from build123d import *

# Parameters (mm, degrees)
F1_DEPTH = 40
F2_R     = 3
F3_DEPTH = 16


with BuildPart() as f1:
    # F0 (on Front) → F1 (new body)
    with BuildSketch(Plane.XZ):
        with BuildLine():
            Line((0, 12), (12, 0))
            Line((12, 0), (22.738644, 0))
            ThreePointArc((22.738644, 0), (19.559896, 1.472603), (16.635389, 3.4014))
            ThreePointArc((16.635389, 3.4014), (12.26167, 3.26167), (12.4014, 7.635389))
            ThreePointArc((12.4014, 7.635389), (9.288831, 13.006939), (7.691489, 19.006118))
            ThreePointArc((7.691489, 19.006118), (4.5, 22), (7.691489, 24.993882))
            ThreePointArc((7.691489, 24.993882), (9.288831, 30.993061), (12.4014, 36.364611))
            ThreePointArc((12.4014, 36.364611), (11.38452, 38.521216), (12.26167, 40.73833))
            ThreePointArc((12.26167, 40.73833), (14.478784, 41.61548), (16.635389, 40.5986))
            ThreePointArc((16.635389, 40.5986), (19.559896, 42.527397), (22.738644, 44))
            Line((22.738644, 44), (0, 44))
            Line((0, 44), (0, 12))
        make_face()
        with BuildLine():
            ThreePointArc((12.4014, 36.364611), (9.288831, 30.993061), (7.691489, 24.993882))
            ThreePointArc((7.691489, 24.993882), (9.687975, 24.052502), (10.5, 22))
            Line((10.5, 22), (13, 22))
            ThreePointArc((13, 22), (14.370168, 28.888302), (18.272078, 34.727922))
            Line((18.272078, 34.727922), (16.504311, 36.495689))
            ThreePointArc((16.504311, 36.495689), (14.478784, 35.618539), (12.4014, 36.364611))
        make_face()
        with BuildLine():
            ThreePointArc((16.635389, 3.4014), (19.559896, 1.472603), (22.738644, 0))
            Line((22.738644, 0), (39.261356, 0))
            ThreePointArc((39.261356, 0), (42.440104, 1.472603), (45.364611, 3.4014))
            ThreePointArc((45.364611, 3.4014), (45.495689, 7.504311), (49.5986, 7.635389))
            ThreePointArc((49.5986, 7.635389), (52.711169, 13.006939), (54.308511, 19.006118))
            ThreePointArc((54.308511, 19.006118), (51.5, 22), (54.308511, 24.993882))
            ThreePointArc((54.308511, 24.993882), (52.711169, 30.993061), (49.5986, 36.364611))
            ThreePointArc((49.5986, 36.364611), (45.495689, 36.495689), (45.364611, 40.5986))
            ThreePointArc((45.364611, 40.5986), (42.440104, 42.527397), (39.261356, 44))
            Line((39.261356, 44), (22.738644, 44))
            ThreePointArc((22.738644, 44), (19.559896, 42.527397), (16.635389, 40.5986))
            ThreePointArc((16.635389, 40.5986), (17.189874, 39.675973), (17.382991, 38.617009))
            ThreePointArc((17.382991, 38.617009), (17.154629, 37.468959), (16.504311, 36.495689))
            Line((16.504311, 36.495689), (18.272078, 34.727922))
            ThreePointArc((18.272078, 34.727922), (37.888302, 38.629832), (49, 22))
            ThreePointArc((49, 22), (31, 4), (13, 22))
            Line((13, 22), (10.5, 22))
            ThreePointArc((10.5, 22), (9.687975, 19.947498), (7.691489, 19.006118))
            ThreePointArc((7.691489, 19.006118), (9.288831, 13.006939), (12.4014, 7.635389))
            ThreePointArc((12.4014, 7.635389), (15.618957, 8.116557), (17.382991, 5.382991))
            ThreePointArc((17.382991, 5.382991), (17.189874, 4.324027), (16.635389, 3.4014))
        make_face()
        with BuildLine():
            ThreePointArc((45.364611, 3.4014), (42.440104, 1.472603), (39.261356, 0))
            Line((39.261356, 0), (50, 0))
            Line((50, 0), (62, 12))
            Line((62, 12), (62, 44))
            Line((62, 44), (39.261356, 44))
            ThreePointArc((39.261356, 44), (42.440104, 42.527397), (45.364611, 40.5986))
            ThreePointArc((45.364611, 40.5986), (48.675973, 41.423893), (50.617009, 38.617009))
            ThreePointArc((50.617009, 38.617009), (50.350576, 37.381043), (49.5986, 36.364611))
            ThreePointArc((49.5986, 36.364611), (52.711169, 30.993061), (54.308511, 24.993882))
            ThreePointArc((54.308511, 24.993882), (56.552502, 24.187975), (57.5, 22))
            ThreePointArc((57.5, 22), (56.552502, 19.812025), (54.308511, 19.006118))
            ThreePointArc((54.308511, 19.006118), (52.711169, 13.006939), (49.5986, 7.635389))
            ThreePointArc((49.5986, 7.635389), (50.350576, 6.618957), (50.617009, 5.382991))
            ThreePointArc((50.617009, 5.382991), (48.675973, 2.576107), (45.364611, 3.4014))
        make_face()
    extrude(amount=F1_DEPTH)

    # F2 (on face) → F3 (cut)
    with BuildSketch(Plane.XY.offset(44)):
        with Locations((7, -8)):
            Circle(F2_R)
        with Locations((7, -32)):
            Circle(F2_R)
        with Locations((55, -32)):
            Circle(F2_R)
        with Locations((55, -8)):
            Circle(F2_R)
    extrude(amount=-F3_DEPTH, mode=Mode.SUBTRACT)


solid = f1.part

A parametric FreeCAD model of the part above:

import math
import FreeCAD as App
import Part
import Sketcher
Q = App.Units.Quantity


def add_polygon(sketch, points):
    """Adds a closed chain of lines whose ends are joined by coincident constraints."""
    first, n = sketch.GeometryCount, len(points)
    for a, b in zip(points, points[1:] + points[:1]):
        sketch.addGeometry(Part.LineSegment(App.Vector(*a, 0), App.Vector(*b, 0)), False)
    for i in range(n):
        sketch.addConstraint(Sketcher.Constraint("Coincident", first + i, 2, first + (i + 1) % n, 1))

doc = App.newDocument("Part")
body = doc.addObject("PartDesign::Body", "Body")

sketch1 = doc.addObject("Sketcher::SketchObject", "Sketch")
body.addObject(sketch1)
sketch1.AttachmentSupport = (doc.XZ_Plane, [""])
sketch1.MapMode = "FlatFace"
add_polygon(sketch1, [(0, 12), (12, 0), (50, 0), (62, 12), (62, 44), (0, 44)])
sketch1.addGeometry(Part.ArcOfCircle(Part.Circle(App.Vector(47.6, 5.4, 0), App.Vector(0, 0, 1), 3), math.radians(49), math.radians(221)), False)
sketch1.addGeometry(Part.ArcOfCircle(Part.Circle(App.Vector(47.6, 5.4, 0), App.Vector(0, 0, 1), 3), math.radians(0), math.radians(49)), False)
sketch1.addGeometry(Part.ArcOfCircle(Part.Circle(App.Vector(47.6, 5.4, 0), App.Vector(0, 0, 1), 3), math.radians(-139), math.radians(0)), False)
sketch1.addGeometry(Part.ArcOfCircle(Part.Circle(App.Vector(54.5, 22, 0), App.Vector(0, 0, 1), 3), math.radians(94), math.radians(266)), False)
sketch1.addGeometry(Part.ArcOfCircle(Part.Circle(App.Vector(54.5, 22, 0), App.Vector(0, 0, 1), 3), math.radians(0), math.radians(94)), False)
sketch1.addGeometry(Part.ArcOfCircle(Part.Circle(App.Vector(54.5, 22, 0), App.Vector(0, 0, 1), 3), math.radians(-94), math.radians(0)), False)
sketch1.addGeometry(Part.ArcOfCircle(Part.Circle(App.Vector(47.6, 38.6, 0), App.Vector(0, 0, 1), 3), math.radians(139), math.radians(311)), False)
sketch1.addGeometry(Part.ArcOfCircle(Part.Circle(App.Vector(47.6, 38.6, 0), App.Vector(0, 0, 1), 3), math.radians(0), math.radians(139)), False)
sketch1.addGeometry(Part.ArcOfCircle(Part.Circle(App.Vector(47.6, 38.6, 0), App.Vector(0, 0, 1), 3), math.radians(-49), math.radians(0)), False)
sketch1.addGeometry(Part.ArcOfCircle(Part.Circle(App.Vector(14.4, 5.4, 0), App.Vector(0, 0, 1), 3), math.radians(131), math.radians(319)), False)
sketch1.addGeometry(Part.ArcOfCircle(Part.Circle(App.Vector(14.4, 5.4, 0), App.Vector(0, 0, 1), 3), math.radians(0), math.radians(131)), False)
sketch1.addGeometry(Part.ArcOfCircle(Part.Circle(App.Vector(14.4, 5.4, 0), App.Vector(0, 0, 1), 3), math.radians(-41), math.radians(0)), False)
sketch1.addGeometry(Part.ArcOfCircle(Part.Circle(App.Vector(7.5, 22, 0), App.Vector(0, 0, 1), 3), math.radians(86), math.radians(274)), False)
sketch1.addGeometry(Part.ArcOfCircle(Part.Circle(App.Vector(7.5, 22, 0), App.Vector(0, 0, 1), 3), math.radians(0), math.radians(86)), False)
sketch1.addGeometry(Part.ArcOfCircle(Part.Circle(App.Vector(7.5, 22, 0), App.Vector(0, 0, 1), 3), math.radians(-86), math.radians(0)), False)
sketch1.addGeometry(Part.ArcOfCircle(Part.Circle(App.Vector(31, 22, 0), App.Vector(0, 0, 1), 18), math.radians(135), math.radians(180)), False)
sketch1.addGeometry(Part.ArcOfCircle(Part.Circle(App.Vector(31, 22, 0), App.Vector(0, 0, 1), 18), math.radians(0), math.radians(135)), False)
sketch1.addGeometry(Part.ArcOfCircle(Part.Circle(App.Vector(31, 22, 0), App.Vector(0, 0, 1), 18), math.radians(180), math.radians(360)), False)
sketch1.addGeometry(Part.ArcOfCircle(Part.Circle(App.Vector(14.4, 38.6, 0), App.Vector(0, 0, 1), 3), math.radians(-131), math.radians(-45)), False)
sketch1.addGeometry(Part.ArcOfCircle(Part.Circle(App.Vector(14.4, 38.6, 0), App.Vector(0, 0, 1), 3), math.radians(135), math.radians(229)), False)
sketch1.addGeometry(Part.ArcOfCircle(Part.Circle(App.Vector(14.4, 38.6, 0), App.Vector(0, 0, 1), 3), math.radians(41), math.radians(135)), False)
sketch1.addGeometry(Part.ArcOfCircle(Part.Circle(App.Vector(14.4, 38.6, 0), App.Vector(0, 0, 1), 3), math.radians(0), math.radians(41)), False)
sketch1.addGeometry(Part.ArcOfCircle(Part.Circle(App.Vector(14.4, 38.6, 0), App.Vector(0, 0, 1), 3), math.radians(-45), math.radians(0)), False)
sketch1.addConstraint(Sketcher.Constraint("Tangent", 6, 1, 7, 2))
sketch1.addConstraint(Sketcher.Constraint("Tangent", 7, 1, 8, 2))
sketch1.addConstraint(Sketcher.Constraint("Tangent", 8, 1, 6, 2))
sketch1.addConstraint(Sketcher.Constraint("Tangent", 9, 1, 10, 2))
sketch1.addConstraint(Sketcher.Constraint("Tangent", 10, 1, 11, 2))
sketch1.addConstraint(Sketcher.Constraint("Tangent", 11, 1, 9, 2))
sketch1.addConstraint(Sketcher.Constraint("Tangent", 12, 1, 13, 2))
sketch1.addConstraint(Sketcher.Constraint("Tangent", 13, 1, 14, 2))
sketch1.addConstraint(Sketcher.Constraint("Tangent", 14, 1, 12, 2))
sketch1.addConstraint(Sketcher.Constraint("Tangent", 15, 1, 16, 2))
sketch1.addConstraint(Sketcher.Constraint("Tangent", 16, 1, 17, 2))
sketch1.addConstraint(Sketcher.Constraint("Tangent", 17, 1, 15, 2))
sketch1.addConstraint(Sketcher.Constraint("Tangent", 18, 1, 19, 2))
sketch1.addConstraint(Sketcher.Constraint("Tangent", 19, 1, 20, 2))
sketch1.addConstraint(Sketcher.Constraint("Tangent", 20, 1, 18, 2))
sketch1.addConstraint(Sketcher.Constraint("Tangent", 21, 1, 22, 2))
sketch1.addConstraint(Sketcher.Constraint("Tangent", 22, 1, 23, 2))
sketch1.addConstraint(Sketcher.Constraint("Tangent", 23, 1, 21, 2))
sketch1.addConstraint(Sketcher.Constraint("Tangent", 24, 1, 25, 2))
sketch1.addConstraint(Sketcher.Constraint("Tangent", 25, 1, 26, 2))
sketch1.addConstraint(Sketcher.Constraint("Tangent", 26, 1, 27, 2))
sketch1.addConstraint(Sketcher.Constraint("Tangent", 27, 1, 28, 2))
sketch1.addConstraint(Sketcher.Constraint("Tangent", 28, 1, 24, 2))
sketch1.addConstraint(Sketcher.Constraint("Horizontal", 1))
sketch1.addConstraint(Sketcher.Constraint("Vertical", 3))
sketch1.addConstraint(Sketcher.Constraint("Horizontal", 4))
sketch1.addConstraint(Sketcher.Constraint("Vertical", 5))
sketch1.addConstraint(Sketcher.Constraint("Coincident", 26, 3, 24, 3))
sketch1.addConstraint(Sketcher.Constraint("Equal", 8, 9))
sketch1.addConstraint(Sketcher.Constraint("Equal", 11, 12))
sketch1.addConstraint(Sketcher.Constraint("Equal", 14, 15))
sketch1.addConstraint(Sketcher.Constraint("Equal", 16, 18))
sketch1.addConstraint(Sketcher.Constraint("Equal", 20, 24))
sketch1.addConstraint(Sketcher.Constraint("PointOnObject", 0, 2, -1))
sketch1.addConstraint(Sketcher.Constraint("PointOnObject", 4, 2, -2))
sketch1.addConstraint(Sketcher.Constraint("Perpendicular", 0, 2))
sketch1.addConstraint(Sketcher.Constraint("Horizontal", 8, 3, 15, 3))
sketch1.addConstraint(Sketcher.Constraint("Horizontal", 11, 3, 18, 3))
sketch1.addConstraint(Sketcher.Constraint("Horizontal", 20, 3, 22, 3))
sketch1.addConstraint(Sketcher.Constraint("Horizontal", 14, 3, 24, 3))
sketch1.addConstraint(Sketcher.Constraint("Horizontal", 2, 2, 5, 2))
sketch1.addConstraint(Sketcher.Constraint("Horizontal", 16, 3, 7, 1))
sketch1.addConstraint(Sketcher.Constraint("Horizontal", 23, 3, 10, 1))
sketch1.addConstraint(Sketcher.Constraint("Horizontal", 26, 3, 13, 1))
sketch1.addConstraint(Sketcher.Constraint("Horizontal", 6, 1, 15, 1))
sketch1.addConstraint(Sketcher.Constraint("Horizontal", 7, 1, 16, 1))
sketch1.addConstraint(Sketcher.Constraint("Horizontal", 8, 1, 17, 1))
sketch1.addConstraint(Sketcher.Constraint("Horizontal", 9, 1, 18, 1))
sketch1.addConstraint(Sketcher.Constraint("Horizontal", 10, 1, 19, 1))
sketch1.addConstraint(Sketcher.Constraint("Horizontal", 11, 1, 20, 1))
sketch1.addConstraint(Sketcher.Constraint("Horizontal", 19, 1, 22, 1))
sketch1.addConstraint(Sketcher.Constraint("Horizontal", 22, 1, 23, 1))
sketch1.addConstraint(Sketcher.Constraint("Horizontal", 14, 1, 24, 1))
sketch1.addConstraint(Sketcher.Constraint("Horizontal", 12, 1, 26, 1))
sketch1.addConstraint(Sketcher.Constraint("Horizontal", 13, 1, 27, 1))
sketch1.addConstraint(Sketcher.Constraint("Vertical", 8, 3, 12, 3))
sketch1.addConstraint(Sketcher.Constraint("Vertical", 16, 3, 24, 3))
sketch1.addConstraint(Sketcher.Constraint("Vertical", 9, 1, 11, 1))
sketch1.addConstraint(Sketcher.Constraint("Vertical", 8, 1, 12, 1))
sketch1.addConstraint(Sketcher.Constraint("Vertical", 6, 1, 14, 1))
sketch1.addConstraint(Sketcher.Constraint("Equal", 0, 2))
sketch1.addConstraint(Sketcher.Constraint("Radius", 6, Q("3 mm")))
sketch1.addConstraint(Sketcher.Constraint("Radius", 22, Q("18 mm")))
sketch1.addConstraint(Sketcher.Constraint("DistanceX", 1, 1, 1, 2, Q("38 mm")))
sketch1.addConstraint(Sketcher.Constraint("DistanceX", 4, 2, 4, 1, Q("62 mm")))
sketch1.addConstraint(Sketcher.Constraint("DistanceY", 3, 1, 3, 2, Q("32 mm")))
sketch1.addConstraint(Sketcher.Constraint("DistanceY", -1, 1, 9, 3, Q("22 mm")))
sketch1.addConstraint(Sketcher.Constraint("DistanceX", -1, 1, 22, 3, Q("31 mm")))
sketch1.addConstraint(Sketcher.Constraint("DistanceX", -1, 1, 9, 3, Q("54.5 mm")))
sketch1.addConstraint(Sketcher.Constraint("DistanceX", -1, 1, 18, 3, Q("7.5 mm")))
sketch1.addConstraint(Sketcher.Constraint("DistanceX", -1, 1, 6, 1, Q("49.5986 mm")))
sketch1.addConstraint(Sketcher.Constraint("DistanceY", -1, 1, 8, 1, Q("3.4014 mm")))
sketch1.addConstraint(Sketcher.Constraint("DistanceY", -1, 1, 12, 1, Q("40.5986 mm")))
sketch1.addConstraint(Sketcher.Constraint("DistanceX", -1, 1, 15, 1, Q("12.4014 mm")))
sketch1.addConstraint(Sketcher.Constraint("DistanceY", 6, 3, 6, 1, Q("2.252398 mm")))
sketch1.addConstraint(Sketcher.Constraint("DistanceX", 8, 1, 8, 3, Q("2.252398 mm")))
sketch1.addConstraint(Sketcher.Constraint("DistanceX", 14, 3, 9, 1, Q("6.691501 mm")))
sketch1.addConstraint(Sketcher.Constraint("DistanceX", -1, 1, 21, 1, Q("18.272078 mm")))
sketch1.addConstraint(Sketcher.Constraint("DistanceX", -1, 1, 25, 1, Q("12.26167 mm")))
sketch1.addConstraint(Sketcher.Constraint("DistanceX", -1, 1, 28, 1, Q("16.504311 mm")))
pad1 = doc.addObject("PartDesign::Pad", "Pad")
body.addObject(pad1)
pad1.Profile = sketch1
pad1.Length = 40

sketch2 = doc.addObject("Sketcher::SketchObject", "Sketch001")
body.addObject(sketch2)
sketch2.AttachmentSupport = (doc.XY_Plane, [""])
sketch2.MapMode = "FlatFace"
sketch2.AttachmentOffset = App.Placement(App.Vector(0, 0, 44), App.Rotation())
sketch2.addGeometry(Part.Circle(App.Vector(7, -8, 0), App.Vector(0, 0, 1), 3), False)
sketch2.addGeometry(Part.Circle(App.Vector(7, -32, 0), App.Vector(0, 0, 1), 3), False)
sketch2.addGeometry(Part.Circle(App.Vector(55, -32, 0), App.Vector(0, 0, 1), 3), False)
sketch2.addGeometry(Part.Circle(App.Vector(55, -8, 0), App.Vector(0, 0, 1), 3), False)
sketch2.addConstraint(Sketcher.Constraint("Equal", 0, 1))
sketch2.addConstraint(Sketcher.Constraint("Equal", 1, 2))
sketch2.addConstraint(Sketcher.Constraint("Equal", 2, 3))
sketch2.addConstraint(Sketcher.Constraint("Horizontal", 1, 3, 2, 3))
sketch2.addConstraint(Sketcher.Constraint("Horizontal", 0, 3, 3, 3))
sketch2.addConstraint(Sketcher.Constraint("Vertical", 0, 3, 1, 3))
sketch2.addConstraint(Sketcher.Constraint("Vertical", 2, 3, 3, 3))
sketch2.addConstraint(Sketcher.Constraint("Diameter", 0, Q("6 mm")))
sketch2.addConstraint(Sketcher.Constraint("DistanceX", -1, 1, 0, 3, Q("7 mm")))
sketch2.addConstraint(Sketcher.Constraint("DistanceY", 0, 3, -1, 1, Q("8 mm")))
sketch2.addConstraint(Sketcher.Constraint("DistanceY", 1, 3, -1, 1, Q("32 mm")))
sketch2.addConstraint(Sketcher.Constraint("DistanceX", -1, 1, 2, 3, Q("55 mm")))
pocket1 = doc.addObject("PartDesign::Pocket", "Pocket")
body.addObject(pocket1)
pocket1.Profile = sketch2
pocket1.Length = 16

doc.recompute()
